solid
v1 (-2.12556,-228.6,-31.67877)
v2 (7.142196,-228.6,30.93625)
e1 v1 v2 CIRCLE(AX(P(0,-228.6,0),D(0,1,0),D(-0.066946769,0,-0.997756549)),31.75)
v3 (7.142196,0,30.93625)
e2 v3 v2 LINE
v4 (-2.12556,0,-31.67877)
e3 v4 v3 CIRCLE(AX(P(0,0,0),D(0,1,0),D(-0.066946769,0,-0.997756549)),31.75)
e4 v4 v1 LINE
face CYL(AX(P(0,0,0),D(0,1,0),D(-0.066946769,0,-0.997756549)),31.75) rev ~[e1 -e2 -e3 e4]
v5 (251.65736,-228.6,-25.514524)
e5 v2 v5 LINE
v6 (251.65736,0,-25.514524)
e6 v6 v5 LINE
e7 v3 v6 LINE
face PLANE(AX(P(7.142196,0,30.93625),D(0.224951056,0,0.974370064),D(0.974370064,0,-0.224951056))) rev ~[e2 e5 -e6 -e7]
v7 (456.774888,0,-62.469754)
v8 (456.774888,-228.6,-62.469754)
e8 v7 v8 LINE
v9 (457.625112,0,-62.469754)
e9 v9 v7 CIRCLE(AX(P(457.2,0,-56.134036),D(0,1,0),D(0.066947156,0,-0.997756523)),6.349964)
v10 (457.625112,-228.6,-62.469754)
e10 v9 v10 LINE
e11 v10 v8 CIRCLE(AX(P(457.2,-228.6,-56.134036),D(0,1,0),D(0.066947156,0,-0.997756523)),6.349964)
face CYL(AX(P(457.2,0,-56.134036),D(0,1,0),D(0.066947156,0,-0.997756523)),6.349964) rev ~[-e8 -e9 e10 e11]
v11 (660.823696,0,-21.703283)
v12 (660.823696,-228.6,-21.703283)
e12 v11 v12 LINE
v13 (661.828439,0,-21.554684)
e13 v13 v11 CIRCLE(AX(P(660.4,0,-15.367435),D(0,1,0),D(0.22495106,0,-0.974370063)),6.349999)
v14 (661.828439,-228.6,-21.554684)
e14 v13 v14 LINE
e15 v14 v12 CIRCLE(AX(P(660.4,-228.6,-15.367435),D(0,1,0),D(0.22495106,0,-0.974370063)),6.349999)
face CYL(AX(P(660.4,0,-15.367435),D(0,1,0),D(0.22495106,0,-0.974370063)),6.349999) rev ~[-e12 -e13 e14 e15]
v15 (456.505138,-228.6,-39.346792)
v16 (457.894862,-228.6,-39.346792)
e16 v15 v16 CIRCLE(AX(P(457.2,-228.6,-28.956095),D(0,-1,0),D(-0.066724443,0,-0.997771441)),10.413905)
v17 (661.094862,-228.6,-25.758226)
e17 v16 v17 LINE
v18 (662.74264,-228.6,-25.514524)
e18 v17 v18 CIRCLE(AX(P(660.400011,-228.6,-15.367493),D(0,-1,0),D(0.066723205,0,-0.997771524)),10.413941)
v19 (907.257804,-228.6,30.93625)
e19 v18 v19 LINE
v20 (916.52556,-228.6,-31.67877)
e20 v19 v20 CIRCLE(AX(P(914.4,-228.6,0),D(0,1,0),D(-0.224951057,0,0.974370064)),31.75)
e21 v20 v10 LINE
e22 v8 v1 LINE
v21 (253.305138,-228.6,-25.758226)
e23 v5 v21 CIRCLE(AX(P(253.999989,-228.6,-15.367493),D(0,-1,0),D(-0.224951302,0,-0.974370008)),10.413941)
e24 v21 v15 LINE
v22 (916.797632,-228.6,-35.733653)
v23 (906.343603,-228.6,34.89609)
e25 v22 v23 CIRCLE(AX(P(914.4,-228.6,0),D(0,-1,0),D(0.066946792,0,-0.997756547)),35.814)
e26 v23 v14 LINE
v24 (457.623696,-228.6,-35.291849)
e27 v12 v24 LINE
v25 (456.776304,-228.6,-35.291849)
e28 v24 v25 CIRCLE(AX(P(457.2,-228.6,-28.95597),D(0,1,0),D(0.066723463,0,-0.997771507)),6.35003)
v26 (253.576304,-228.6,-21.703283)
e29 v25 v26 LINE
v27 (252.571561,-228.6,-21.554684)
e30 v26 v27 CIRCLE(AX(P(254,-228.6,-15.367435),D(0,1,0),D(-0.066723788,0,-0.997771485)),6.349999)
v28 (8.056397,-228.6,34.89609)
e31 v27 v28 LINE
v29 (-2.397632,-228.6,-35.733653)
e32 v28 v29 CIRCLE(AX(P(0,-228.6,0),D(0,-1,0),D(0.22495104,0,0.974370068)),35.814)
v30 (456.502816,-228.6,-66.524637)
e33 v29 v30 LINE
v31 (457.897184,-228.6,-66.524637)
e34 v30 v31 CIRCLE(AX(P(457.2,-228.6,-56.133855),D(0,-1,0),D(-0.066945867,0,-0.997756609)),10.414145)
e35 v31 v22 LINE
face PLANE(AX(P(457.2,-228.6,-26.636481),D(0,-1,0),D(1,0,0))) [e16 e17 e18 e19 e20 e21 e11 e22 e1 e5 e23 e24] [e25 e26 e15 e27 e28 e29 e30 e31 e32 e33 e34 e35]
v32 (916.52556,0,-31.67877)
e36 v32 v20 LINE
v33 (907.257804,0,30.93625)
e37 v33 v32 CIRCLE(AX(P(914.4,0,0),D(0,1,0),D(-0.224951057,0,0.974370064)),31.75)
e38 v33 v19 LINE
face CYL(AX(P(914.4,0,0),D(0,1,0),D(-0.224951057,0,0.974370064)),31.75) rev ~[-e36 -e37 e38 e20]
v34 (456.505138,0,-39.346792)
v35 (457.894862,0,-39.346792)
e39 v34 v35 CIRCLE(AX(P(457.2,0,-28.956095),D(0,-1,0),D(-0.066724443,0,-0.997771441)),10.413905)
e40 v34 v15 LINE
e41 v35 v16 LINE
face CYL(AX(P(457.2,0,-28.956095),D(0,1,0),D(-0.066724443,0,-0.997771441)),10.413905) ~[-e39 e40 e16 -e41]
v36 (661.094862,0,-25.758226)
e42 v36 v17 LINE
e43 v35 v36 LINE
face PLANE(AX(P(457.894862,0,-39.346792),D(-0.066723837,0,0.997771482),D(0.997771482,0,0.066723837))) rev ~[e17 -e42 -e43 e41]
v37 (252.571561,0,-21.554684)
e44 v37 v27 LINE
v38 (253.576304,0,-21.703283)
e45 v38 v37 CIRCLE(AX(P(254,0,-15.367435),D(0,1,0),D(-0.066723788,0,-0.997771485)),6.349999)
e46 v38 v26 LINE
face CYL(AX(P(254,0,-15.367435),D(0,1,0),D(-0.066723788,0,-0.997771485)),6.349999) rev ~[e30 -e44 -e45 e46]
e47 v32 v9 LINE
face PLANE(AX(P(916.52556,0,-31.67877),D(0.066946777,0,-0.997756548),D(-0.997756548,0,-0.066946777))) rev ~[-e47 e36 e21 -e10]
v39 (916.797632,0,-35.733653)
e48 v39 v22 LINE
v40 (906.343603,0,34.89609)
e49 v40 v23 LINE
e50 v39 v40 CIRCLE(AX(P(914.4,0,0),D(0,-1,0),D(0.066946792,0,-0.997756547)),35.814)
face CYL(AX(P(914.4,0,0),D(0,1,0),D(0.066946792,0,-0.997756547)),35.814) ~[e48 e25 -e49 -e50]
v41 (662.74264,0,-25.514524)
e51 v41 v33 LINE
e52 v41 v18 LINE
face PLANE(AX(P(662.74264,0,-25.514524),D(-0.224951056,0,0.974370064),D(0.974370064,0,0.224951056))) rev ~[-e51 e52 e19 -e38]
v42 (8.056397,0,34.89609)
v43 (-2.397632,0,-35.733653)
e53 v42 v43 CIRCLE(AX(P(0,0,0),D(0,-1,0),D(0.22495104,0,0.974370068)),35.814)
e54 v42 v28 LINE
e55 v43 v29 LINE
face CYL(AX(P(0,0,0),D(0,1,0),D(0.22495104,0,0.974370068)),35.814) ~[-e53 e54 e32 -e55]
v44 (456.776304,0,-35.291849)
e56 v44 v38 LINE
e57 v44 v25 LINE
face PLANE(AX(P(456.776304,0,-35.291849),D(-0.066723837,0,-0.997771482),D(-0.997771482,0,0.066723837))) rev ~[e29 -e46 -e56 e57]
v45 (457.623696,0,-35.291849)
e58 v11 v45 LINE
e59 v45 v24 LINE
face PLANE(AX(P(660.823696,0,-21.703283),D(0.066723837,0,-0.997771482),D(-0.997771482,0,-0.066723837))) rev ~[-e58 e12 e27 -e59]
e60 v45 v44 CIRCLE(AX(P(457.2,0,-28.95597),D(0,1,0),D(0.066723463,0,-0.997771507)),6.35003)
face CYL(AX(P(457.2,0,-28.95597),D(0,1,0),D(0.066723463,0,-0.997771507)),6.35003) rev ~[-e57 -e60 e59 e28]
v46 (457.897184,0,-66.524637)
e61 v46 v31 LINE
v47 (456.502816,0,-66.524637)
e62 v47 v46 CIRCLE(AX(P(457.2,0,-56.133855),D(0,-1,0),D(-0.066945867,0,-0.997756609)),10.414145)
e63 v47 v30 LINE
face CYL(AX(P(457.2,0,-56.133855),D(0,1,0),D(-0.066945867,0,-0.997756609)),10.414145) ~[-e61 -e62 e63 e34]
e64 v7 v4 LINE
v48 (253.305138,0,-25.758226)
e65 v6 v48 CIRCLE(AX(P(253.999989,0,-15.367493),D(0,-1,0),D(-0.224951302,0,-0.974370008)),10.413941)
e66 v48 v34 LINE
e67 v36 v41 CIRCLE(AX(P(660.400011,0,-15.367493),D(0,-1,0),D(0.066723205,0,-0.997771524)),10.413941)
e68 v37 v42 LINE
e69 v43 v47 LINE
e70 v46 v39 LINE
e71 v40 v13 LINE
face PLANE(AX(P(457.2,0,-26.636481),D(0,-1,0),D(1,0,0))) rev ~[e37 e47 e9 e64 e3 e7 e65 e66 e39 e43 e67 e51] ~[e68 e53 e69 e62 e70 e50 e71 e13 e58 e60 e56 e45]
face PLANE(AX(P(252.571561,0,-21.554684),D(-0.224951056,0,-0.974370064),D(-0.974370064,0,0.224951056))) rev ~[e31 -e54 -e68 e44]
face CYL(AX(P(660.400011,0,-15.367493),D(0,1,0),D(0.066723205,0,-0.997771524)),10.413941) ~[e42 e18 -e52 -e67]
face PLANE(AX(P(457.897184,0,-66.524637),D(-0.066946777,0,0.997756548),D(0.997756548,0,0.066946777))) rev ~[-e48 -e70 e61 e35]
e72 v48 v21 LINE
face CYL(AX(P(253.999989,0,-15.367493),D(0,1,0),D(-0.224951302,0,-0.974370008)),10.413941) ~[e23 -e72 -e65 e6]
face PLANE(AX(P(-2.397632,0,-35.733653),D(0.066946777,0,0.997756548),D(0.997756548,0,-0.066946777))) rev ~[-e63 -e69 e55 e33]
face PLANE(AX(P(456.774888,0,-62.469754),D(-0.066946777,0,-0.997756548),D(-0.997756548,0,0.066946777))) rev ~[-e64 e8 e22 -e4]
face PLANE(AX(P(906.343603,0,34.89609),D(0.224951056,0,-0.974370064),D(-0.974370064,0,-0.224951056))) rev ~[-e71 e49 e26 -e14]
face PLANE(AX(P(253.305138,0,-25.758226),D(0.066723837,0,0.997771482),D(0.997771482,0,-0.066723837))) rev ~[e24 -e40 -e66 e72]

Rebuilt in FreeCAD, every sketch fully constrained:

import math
import FreeCAD as App
import Part
import Sketcher
from FreeCAD import Vector
Q = App.Units.Quantity

doc = App.newDocument("Part")
body = doc.addObject("PartDesign::Body", "Body")

sketch1 = body.newObject("Sketcher::SketchObject", "Sketch")
sketch1.AttachmentSupport = (doc.getObject("XZ_Plane"), [""])
sketch1.MapMode = "FlatFace"
sketch1.addGeometry(Part.ArcOfCircle(Part.Circle(Vector(457.2, -28.95597, 0), Vector(0, 0, 1), 6.35003), math.radians(-93.825815), math.radians(-86.174185)), False)
sketch1.addGeometry(Part.LineSegment(Vector(456.776304, -35.291849, 0), Vector(253.576304, -21.703283, 0)), False)
sketch1.addGeometry(Part.ArcOfCircle(Part.Circle(Vector(254, -15.367435, 0), Vector(0, 0, 1), 6.349999), math.radians(-103), math.radians(-93.825834)), False)
sketch1.addGeometry(Part.LineSegment(Vector(252.571561, -21.554684, 0), Vector(8.056397, 34.89609, 0)), False)
sketch1.addGeometry(Part.ArcOfCircle(Part.Circle(Vector(0, 0, 0), Vector(0, 0, 1), 35.814), math.radians(77.000001), math.radians(266.16136)), False)
sketch1.addGeometry(Part.LineSegment(Vector(-2.397632, -35.733653, 0), Vector(456.502816, -66.524637, 0)), False)
sketch1.addGeometry(Part.ArcOfCircle(Part.Circle(Vector(457.2, -56.133855, 0), Vector(0, 0, 1), 10.414145), math.radians(-93.838587), math.radians(-86.161413)), False)
sketch1.addGeometry(Part.LineSegment(Vector(457.897184, -66.524637, 0), Vector(916.797632, -35.733653, 0)), False)
sketch1.addGeometry(Part.ArcOfCircle(Part.Circle(Vector(914.4, 0, 0), Vector(0, 0, 1), 35.814), math.radians(-86.16136), math.radians(102.999999)), False)
sketch1.addGeometry(Part.LineSegment(Vector(906.343603, 34.89609, 0), Vector(661.828439, -21.554684, 0)), False)
sketch1.addGeometry(Part.ArcOfCircle(Part.Circle(Vector(660.4, -15.367435, 0), Vector(0, 0, 1), 6.349999), math.radians(-86.174166), math.radians(-77)), False)
sketch1.addGeometry(Part.LineSegment(Vector(660.823696, -21.703283, 0), Vector(457.623696, -35.291849, 0)), False)
sketch1.addGeometry(Part.LineSegment(Vector(456.774888, -62.469754, 0), Vector(-2.12556, -31.67877, 0)), False)
sketch1.addGeometry(Part.ArcOfCircle(Part.Circle(Vector(0, 0, 0), Vector(0, 0, 1), 31.75), math.radians(77), math.radians(266.161362)), False)
sketch1.addGeometry(Part.LineSegment(Vector(7.142196, 30.93625, 0), Vector(251.65736, -25.514524, 0)), False)
sketch1.addGeometry(Part.ArcOfCircle(Part.Circle(Vector(253.999989, -15.367493, 0), Vector(0, 0, 1), 10.413941), math.radians(-103.000015), math.radians(-93.8258)), False)
sketch1.addGeometry(Part.LineSegment(Vector(253.305138, -25.758226, 0), Vector(456.505138, -39.346792, 0)), False)
sketch1.addGeometry(Part.ArcOfCircle(Part.Circle(Vector(457.2, -28.956095, 0), Vector(0, 0, 1), 10.413905), math.radians(-93.825871), math.radians(-86.174129)), False)
sketch1.addGeometry(Part.LineSegment(Vector(457.894862, -39.346792, 0), Vector(661.094862, -25.758226, 0)), False)
sketch1.addGeometry(Part.ArcOfCircle(Part.Circle(Vector(660.400011, -15.367493, 0), Vector(0, 0, 1), 10.413941), math.radians(-86.1742), math.radians(-76.999985)), False)
sketch1.addGeometry(Part.LineSegment(Vector(662.74264, -25.514524, 0), Vector(907.257804, 30.93625, 0)), False)
sketch1.addGeometry(Part.ArcOfCircle(Part.Circle(Vector(914.4, 0, 0), Vector(0, 0, 1), 31.75), math.radians(-86.161362), math.radians(103)), False)
sketch1.addGeometry(Part.LineSegment(Vector(916.52556, -31.67877, 0), Vector(457.625112, -62.469754, 0)), False)
sketch1.addGeometry(Part.ArcOfCircle(Part.Circle(Vector(457.2, -56.134036, 0), Vector(0, 0, 1), 6.349964), math.radians(-93.838661), math.radians(-86.161339)), False)
sketch1.addConstraint(Sketcher.Constraint("Coincident", 0, 1, 1, 1))
sketch1.addConstraint(Sketcher.Constraint("Coincident", 1, 2, 2, 2))
sketch1.addConstraint(Sketcher.Constraint("Coincident", 2, 1, 3, 1))
sketch1.addConstraint(Sketcher.Constraint("Coincident", 3, 2, 4, 1))
sketch1.addConstraint(Sketcher.Constraint("Coincident", 4, 2, 5, 1))
sketch1.addConstraint(Sketcher.Constraint("Coincident", 5, 2, 6, 1))
sketch1.addConstraint(Sketcher.Constraint("Coincident", 6, 2, 7, 1))
sketch1.addConstraint(Sketcher.Constraint("Coincident", 7, 2, 8, 1))
sketch1.addConstraint(Sketcher.Constraint("Coincident", 8, 2, 9, 1))
sketch1.addConstraint(Sketcher.Constraint("Coincident", 9, 2, 10, 2))
sketch1.addConstraint(Sketcher.Constraint("Coincident", 10, 1, 11, 1))
sketch1.addConstraint(Sketcher.Constraint("Coincident", 11, 2, 0, 2))
sketch1.addConstraint(Sketcher.Constraint("Coincident", 12, 2, 13, 2))
sketch1.addConstraint(Sketcher.Constraint("Coincident", 13, 1, 14, 1))
sketch1.addConstraint(Sketcher.Constraint("Coincident", 14, 2, 15, 1))
sketch1.addConstraint(Sketcher.Constraint("Coincident", 15, 2, 16, 1))
sketch1.addConstraint(Sketcher.Constraint("Coincident", 16, 2, 17, 1))
sketch1.addConstraint(Sketcher.Constraint("Coincident", 17, 2, 18, 1))
sketch1.addConstraint(Sketcher.Constraint("Coincident", 18, 2, 19, 1))
sketch1.addConstraint(Sketcher.Constraint("Coincident", 19, 2, 20, 1))
sketch1.addConstraint(Sketcher.Constraint("Coincident", 20, 2, 21, 2))
sketch1.addConstraint(Sketcher.Constraint("Coincident", 21, 1, 22, 1))
sketch1.addConstraint(Sketcher.Constraint("Coincident", 22, 2, 23, 2))
sketch1.addConstraint(Sketcher.Constraint("Coincident", 23, 1, 12, 1))
sketch1.addConstraint(Sketcher.Constraint("Coincident", 4, 3, -1, 1))
sketch1.addConstraint(Sketcher.Constraint("Coincident", 13, 3, -1, 1))
sketch1.addConstraint(Sketcher.Constraint("Coincident", 21, 3, 8, 3))
sketch1.addConstraint(Sketcher.Constraint("PointOnObject", 8, 3, -1))
sketch1.addConstraint(Sketcher.Constraint("Radius", 2, Q("0.25 in")))
sketch1.addConstraint(Sketcher.Constraint("Radius", 4, Q("1.41 in")))
sketch1.addConstraint(Sketcher.Constraint("Radius", 8, Q("1.41 in")))
sketch1.addConstraint(Sketcher.Constraint("Radius", 10, Q("0.25 in")))
sketch1.addConstraint(Sketcher.Constraint("Radius", 13, Q("1.25 in")))
sketch1.addConstraint(Sketcher.Constraint("Radius", 21, Q("1.25 in")))
sketch1.addConstraint(Sketcher.Constraint("DistanceX", -1, 1, 0, 3, Q("18 in")))
sketch1.addConstraint(Sketcher.Constraint("DistanceX", -1, 1, 2, 3, Q("10 in")))
sketch1.addConstraint(Sketcher.Constraint("DistanceX", -1, 1, 6, 3, Q("18 in")))
sketch1.addConstraint(Sketcher.Constraint("DistanceX", -1, 1, 8, 3, Q("36 in")))
sketch1.addConstraint(Sketcher.Constraint("DistanceX", -1, 1, 10, 3, Q("26 in")))
sketch1.addConstraint(Sketcher.Constraint("DistanceX", -1, 1, 17, 3, Q("18 in")))
sketch1.addConstraint(Sketcher.Constraint("DistanceX", -1, 1, 23, 3, Q("18 in")))
sketch1.addConstraint(Sketcher.Constraint("DistanceX", 1, 2, 0, 1, Q("8 in")))
sketch1.addConstraint(Sketcher.Constraint("DistanceX", 17, 2, 18, 2, Q("8 in")))
sketch1.addConstraint(Sketcher.Constraint("Radius", 0, Q("6.35003 mm")))
sketch1.addConstraint(Sketcher.Constraint("Radius", 15, Q("10.413941 mm")))
sketch1.addConstraint(Sketcher.Constraint("Radius", 19, Q("10.413941 mm")))
sketch1.addConstraint(Sketcher.Constraint("Distance", 3, Q("9.8797999 in")))
sketch1.addConstraint(Sketcher.Constraint("Distance", 9, Q("9.8797999 in")))
sketch1.addConstraint(Sketcher.Constraint("Distance", 14, Q("9.8797999 in")))
sketch1.addConstraint(Sketcher.Constraint("Distance", 20, Q("9.8797999 in")))
sketch1.addConstraint(Sketcher.Constraint("Radius", 6, Q("10.414145 mm")))
sketch1.addConstraint(Sketcher.Constraint("Radius", 17, Q("10.413905 mm")))
sketch1.addConstraint(Sketcher.Constraint("Radius", 23, Q("6.349964 mm")))
sketch1.addConstraint(Sketcher.Constraint("DistanceY", 1, 2, 2, 1, Q("0.148599 mm")))
sketch1.addConstraint(Sketcher.Constraint("DistanceY", 5, 2, 23, 3, Q("10.390601 mm")))
sketch1.addConstraint(Sketcher.Constraint("DistanceY", 6, 2, 23, 3, Q("10.390601 mm")))
sketch1.addConstraint(Sketcher.Constraint("DistanceY", 10, 1, 9, 2, Q("0.148599 mm")))
sketch1.addConstraint(Sketcher.Constraint("DistanceX", 13, 1, 3, 2, Q("0.914201 mm")))
sketch1.addConstraint(Sketcher.Constraint("DistanceX", 14, 2, 2, 1, Q("0.914201 mm")))
sketch1.addConstraint(Sketcher.Constraint("DistanceY", 18, 2, 19, 2, Q("0.243702 mm")))
sketch1.addConstraint(Sketcher.Constraint("DistanceX", 9, 2, 19, 2, Q("0.914201 mm")))
sketch1.addConstraint(Sketcher.Constraint("DistanceX", 8, 2, 20, 2, Q("0.914201 mm")))
sketch1.addConstraint(Sketcher.Constraint("DistanceY", 22, 2, 6, 3, Q("6.335899 mm")))
sketch1.addConstraint(Sketcher.Constraint("DistanceY", 23, 1, 6, 3, Q("6.335899 mm")))
sketch1.addConstraint(Sketcher.Constraint("DistanceY", 0, 3, -1, 1, Q("28.95597 mm")))
sketch1.addConstraint(Sketcher.Constraint("DistanceX", -1, 1, 15, 3, Q("253.999989 mm")))
sketch1.addConstraint(Sketcher.Constraint("DistanceX", -1, 1, 19, 3, Q("660.400011 mm")))
sketch1.addConstraint(Sketcher.Constraint("DistanceY", 0, 1, -1, 1, Q("35.291849 mm")))
sketch1.addConstraint(Sketcher.Constraint("DistanceY", -1, 1, 3, 2, Q("34.89609 mm")))
sketch1.addConstraint(Sketcher.Constraint("DistanceX", 4, 2, -1, 1, Q("2.397632 mm")))
sketch1.addConstraint(Sketcher.Constraint("DistanceX", -1, 1, 7, 2, Q("916.797632 mm")))
sketch1.addConstraint(Sketcher.Constraint("DistanceY", -1, 1, 8, 2, Q("34.89609 mm")))
sketch1.addConstraint(Sketcher.Constraint("DistanceX", -1, 1, 9, 2, Q("661.828439 mm")))
sketch1.addConstraint(Sketcher.Constraint("DistanceY", 11, 2, -1, 1, Q("35.291849 mm")))
sketch1.addConstraint(Sketcher.Constraint("DistanceX", 12, 2, -1, 1, Q("2.12556 mm")))
sketch1.addConstraint(Sketcher.Constraint("DistanceX", -1, 1, 16, 2, Q("456.505138 mm")))
sketch1.addConstraint(Sketcher.Constraint("DistanceY", 17, 2, -1, 1, Q("39.346792 mm")))
sketch1.addConstraint(Sketcher.Constraint("DistanceX", -1, 1, 21, 1, Q("916.52556 mm")))
sketch1.addConstraint(Sketcher.Constraint("DistanceX", -1, 1, 22, 2, Q("457.625112 mm")))
sketch1.addConstraint(Sketcher.Constraint("DistanceY", 6, 3, 2, 3, Q("40.766419 mm")))
sketch1.addConstraint(Sketcher.Constraint("DistanceX", 15, 2, 15, 3, Q("0.694851 mm")))
pad1 = body.newObject("PartDesign::Pad", "Pad")
pad1.Profile = sketch1
pad1.Length = Q("9 in")

doc.recompute()
